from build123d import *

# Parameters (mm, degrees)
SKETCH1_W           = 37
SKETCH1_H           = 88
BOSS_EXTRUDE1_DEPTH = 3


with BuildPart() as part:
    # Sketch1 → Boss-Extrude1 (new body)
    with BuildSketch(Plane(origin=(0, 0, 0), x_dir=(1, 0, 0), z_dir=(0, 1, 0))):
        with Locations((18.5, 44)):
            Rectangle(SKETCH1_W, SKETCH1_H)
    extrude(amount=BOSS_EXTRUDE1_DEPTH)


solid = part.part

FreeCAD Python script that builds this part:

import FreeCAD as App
import Part
import Sketcher

doc = App.newDocument("Part")
body = doc.addObject("PartDesign::Body", "Body")

sketch1 = doc.addObject("Sketcher::SketchObject", "Sketch")
body.addObject(sketch1)
sketch1.AttachmentSupport = (doc.XZ_Plane, [""])
sketch1.MapMode = "FlatFace"
sketch1.addGeometry(Part.LineSegment(App.Vector(0, -88, 0), App.Vector(0, 0, 0)), False)
sketch1.addGeometry(Part.LineSegment(App.Vector(0, 0, 0), App.Vector(37, 0, 0)), False)
sketch1.addGeometry(Part.LineSegment(App.Vector(37, 0, 0), App.Vector(37, -88, 0)), False)
sketch1.addGeometry(Part.LineSegment(App.Vector(37, -88, 0), App.Vector(0, -88, 0)), False)
sketch1.addConstraint(Sketcher.Constraint("Coincident", 0, 2, 1, 1))
sketch1.addConstraint(Sketcher.Constraint("Coincident", 1, 2, 2, 1))
sketch1.addConstraint(Sketcher.Constraint("Coincident", 2, 2, 3, 1))
sketch1.addConstraint(Sketcher.Constraint("Coincident", 3, 2, 0, 1))
sketch1.addConstraint(Sketcher.Constraint("Vertical", 0))
sketch1.addConstraint(Sketcher.Constraint("Horizontal", 1))
sketch1.addConstraint(Sketcher.Constraint("Vertical", 2))
sketch1.addConstraint(Sketcher.Constraint("Horizontal", 3))
sketch1.addConstraint(Sketcher.Constraint("Coincident", 0, 2, -1, 1))
sketch1.addConstraint(Sketcher.Constraint("DistanceX", 1, 1, 1, 2, 37.0))
sketch1.addConstraint(Sketcher.Constraint("DistanceY", 0, 1, 0, 2, 88.0))
pad1 = doc.addObject("PartDesign::Pad", "Pad")
body.addObject(pad1)
pad1.Profile = sketch1
pad1.Length = 3
pad1.Reversed = True

doc.recompute()
